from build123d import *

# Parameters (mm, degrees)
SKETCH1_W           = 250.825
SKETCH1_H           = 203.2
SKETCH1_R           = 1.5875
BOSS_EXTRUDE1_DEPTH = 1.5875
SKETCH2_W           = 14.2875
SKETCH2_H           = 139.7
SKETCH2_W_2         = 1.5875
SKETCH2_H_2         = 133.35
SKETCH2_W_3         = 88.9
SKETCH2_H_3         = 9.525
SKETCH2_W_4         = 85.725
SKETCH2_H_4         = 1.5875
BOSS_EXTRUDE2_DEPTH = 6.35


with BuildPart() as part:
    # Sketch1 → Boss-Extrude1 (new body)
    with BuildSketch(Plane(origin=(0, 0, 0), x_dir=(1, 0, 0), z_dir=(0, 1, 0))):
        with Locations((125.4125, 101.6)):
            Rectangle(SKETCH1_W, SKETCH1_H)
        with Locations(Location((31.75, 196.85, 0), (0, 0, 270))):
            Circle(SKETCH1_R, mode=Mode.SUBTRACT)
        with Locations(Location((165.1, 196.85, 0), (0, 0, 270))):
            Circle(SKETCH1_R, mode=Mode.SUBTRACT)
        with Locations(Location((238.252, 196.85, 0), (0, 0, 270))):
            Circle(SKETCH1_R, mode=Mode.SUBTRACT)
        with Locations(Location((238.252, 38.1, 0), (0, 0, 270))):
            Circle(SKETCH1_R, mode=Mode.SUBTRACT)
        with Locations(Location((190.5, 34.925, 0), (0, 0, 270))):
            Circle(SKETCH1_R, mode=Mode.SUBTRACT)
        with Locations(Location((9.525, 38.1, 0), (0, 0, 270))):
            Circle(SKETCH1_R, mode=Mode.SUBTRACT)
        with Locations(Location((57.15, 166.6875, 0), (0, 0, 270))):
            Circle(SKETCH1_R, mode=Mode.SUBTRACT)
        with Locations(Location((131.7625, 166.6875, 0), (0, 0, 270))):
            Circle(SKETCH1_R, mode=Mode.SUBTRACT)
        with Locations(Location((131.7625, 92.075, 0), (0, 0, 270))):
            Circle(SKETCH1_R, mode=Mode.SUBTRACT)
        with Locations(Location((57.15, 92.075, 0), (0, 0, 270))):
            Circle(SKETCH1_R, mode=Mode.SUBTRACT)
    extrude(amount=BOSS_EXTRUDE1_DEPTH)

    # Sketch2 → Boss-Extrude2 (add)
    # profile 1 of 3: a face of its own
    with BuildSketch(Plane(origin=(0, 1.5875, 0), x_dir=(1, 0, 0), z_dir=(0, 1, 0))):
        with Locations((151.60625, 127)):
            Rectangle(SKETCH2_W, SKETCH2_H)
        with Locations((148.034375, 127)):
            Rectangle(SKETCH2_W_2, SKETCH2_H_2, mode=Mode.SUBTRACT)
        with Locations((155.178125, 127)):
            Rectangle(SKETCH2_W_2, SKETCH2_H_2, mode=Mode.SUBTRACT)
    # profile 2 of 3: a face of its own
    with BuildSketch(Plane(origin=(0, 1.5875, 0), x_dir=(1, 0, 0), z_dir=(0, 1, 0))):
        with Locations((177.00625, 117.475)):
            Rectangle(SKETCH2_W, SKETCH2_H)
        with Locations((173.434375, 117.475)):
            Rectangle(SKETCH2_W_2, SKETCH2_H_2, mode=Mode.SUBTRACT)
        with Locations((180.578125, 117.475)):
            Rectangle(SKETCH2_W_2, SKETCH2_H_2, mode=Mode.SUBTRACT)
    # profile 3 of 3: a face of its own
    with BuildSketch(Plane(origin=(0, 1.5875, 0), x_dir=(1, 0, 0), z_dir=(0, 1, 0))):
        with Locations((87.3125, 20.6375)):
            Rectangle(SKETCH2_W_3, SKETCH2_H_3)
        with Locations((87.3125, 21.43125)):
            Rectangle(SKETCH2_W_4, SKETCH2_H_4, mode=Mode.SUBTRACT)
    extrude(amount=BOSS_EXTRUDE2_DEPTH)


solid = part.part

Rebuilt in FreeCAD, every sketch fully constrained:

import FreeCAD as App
import Part
import Sketcher
from FreeCAD import Vector
Q = App.Units.Quantity


def add_polygon(sketch, points):
    """Adds a closed chain of lines whose ends are joined by coincident constraints."""
    first, n = sketch.GeometryCount, len(points)
    for a, b in zip(points, points[1:] + points[:1]):
        sketch.addGeometry(Part.LineSegment(App.Vector(*a, 0), App.Vector(*b, 0)), False)
    for i in range(n):
        sketch.addConstraint(Sketcher.Constraint("Coincident", first + i, 2, first + (i + 1) % n, 1))

doc = App.newDocument("Part")
body = doc.addObject("PartDesign::Body", "Body")

# Sketch on XZ plane
sketch1 = body.newObject("Sketcher::SketchObject", "Sketch")
sketch1.AttachmentSupport = (doc.getObject("XZ_Plane"), [""])
sketch1.MapMode = "FlatFace"
add_polygon(sketch1, [(0, -203.2), (0, 0), (250.8, 0), (250.8, -203.2)])  # lines 0-3
sketch1.addGeometry(Part.Circle(Vector(9.5, -38.1, 0), Vector(0, 0, 1), 1.6), False)  # 4
sketch1.addGeometry(Part.Circle(Vector(57.1, -92.1, 0), Vector(0, 0, 1), 1.6), False)  # 5
sketch1.addGeometry(Part.Circle(Vector(190.5, -34.9, 0), Vector(0, 0, 1), 1.6), False)  # 6
sketch1.addGeometry(Part.Circle(Vector(238.3, -38.1, 0), Vector(0, 0, 1), 1.6), False)  # 7
sketch1.addGeometry(Part.Circle(Vector(131.8, -92.1, 0), Vector(0, 0, 1), 1.6), False)  # 8
sketch1.addGeometry(Part.Circle(Vector(57.1, -166.7, 0), Vector(0, 0, 1), 1.6), False)  # 9
sketch1.addGeometry(Part.Circle(Vector(31.8, -196.8, 0), Vector(0, 0, 1), 1.6), False)  # 10
sketch1.addGeometry(Part.Circle(Vector(131.8, -166.7, 0), Vector(0, 0, 1), 1.6), False)  # 11
sketch1.addGeometry(Part.Circle(Vector(165.1, -196.8, 0), Vector(0, 0, 1), 1.6), False)  # 12
sketch1.addGeometry(Part.Circle(Vector(238.3, -196.8, 0), Vector(0, 0, 1), 1.6), False)  # 13
sketch1.addConstraint([
    Sketcher.Constraint("Vertical", 0),
    Sketcher.Constraint("Horizontal", 1),
    Sketcher.Constraint("Vertical", 2),
    Sketcher.Constraint("Horizontal", 3),
    Sketcher.Constraint("Coincident", 0, 2, -1, 1),
    Sketcher.Constraint("Equal", 4, 5),
    Sketcher.Constraint("Equal", 5, 6),
    Sketcher.Constraint("Equal", 6, 7),
    Sketcher.Constraint("Equal", 7, 8),
    Sketcher.Constraint("Equal", 8, 9),
    Sketcher.Constraint("Equal", 9, 10),
    Sketcher.Constraint("Equal", 10, 11),
    Sketcher.Constraint("Equal", 11, 12),
    Sketcher.Constraint("Equal", 12, 13),
    Sketcher.Constraint("Horizontal", 4, 3, 7, 3),
    Sketcher.Constraint("Horizontal", 5, 3, 8, 3),
    Sketcher.Constraint("Horizontal", 9, 3, 11, 3),
    Sketcher.Constraint("Horizontal", 10, 3, 12, 3),
    Sketcher.Constraint("Horizontal", 12, 3, 13, 3),
    Sketcher.Constraint("Vertical", 5, 3, 9, 3),
    Sketcher.Constraint("Vertical", 8, 3, 11, 3),
    Sketcher.Constraint("Vertical", 7, 3, 13, 3),
    Sketcher.Constraint("DistanceY", 0, 1, 0, 2, Q("8 in")),
    Sketcher.Constraint("Diameter", 4, Q("0.125 in")),
    Sketcher.Constraint("DistanceX", 10, 3, 9, 3, Q("1 in")),
    Sketcher.Constraint("DistanceY", 4, 3, -1, 1, Q("1.5 in")),
    Sketcher.Constraint("DistanceX", -1, 1, 6, 3, Q("7.5 in")),
    Sketcher.Constraint("DistanceX", -1, 1, 12, 3, Q("6.5 in")),
    Sketcher.Constraint("DistanceX", 1, 1, 1, 2, Q("9.875 in")),
    Sketcher.Constraint("DistanceX", -1, 1, 5, 3, Q("2.25 in")),
    Sketcher.Constraint("DistanceX", -1, 1, 7, 3, Q("9.38 in")),
    Sketcher.Constraint("DistanceY", 10, 3, -1, 1, Q("7.75 in")),
    Sketcher.Constraint("DistanceY", 5, 3, 6, 3, Q("2.25 in")),
    Sketcher.Constraint("DistanceX", -1, 1, 4, 3, Q("0.375 in")),
    Sketcher.Constraint("DistanceY", 5, 3, -1, 1, Q("3.625 in")),
    Sketcher.Constraint("DistanceX", -1, 1, 8, 3, Q("5.1875 in")),
    Sketcher.Constraint("DistanceY", 9, 3, -1, 1, Q("6.5625 in")),
])
pad1 = body.newObject("PartDesign::Pad", "Pad")
pad1.Profile = sketch1
pad1.Length = Q("0.0625 in")
pad1.Reversed = True

# Sketch on XZ plane
sketch2 = body.newObject("Sketcher::SketchObject", "Sketch001")
sketch2.AttachmentSupport = (doc.getObject("XZ_Plane"), [""])
sketch2.MapMode = "FlatFace"
sketch2.AttachmentOffset = App.Placement(Vector(0, 0, -0.0625 * 25.4), App.Rotation())
add_polygon(sketch2, [(144.5, -196.8), (144.5, -57.1), (158.8, -57.1), (158.8, -196.8)])  # lines 0-3
add_polygon(sketch2, [(148.8, -60.3), (147.2, -60.3), (147.2, -193.7), (148.8, -193.7)])  # lines 4-7
add_polygon(sketch2, [(156, -60.3), (154.4, -60.3), (154.4, -193.7), (156, -193.7)])  # lines 8-11
add_polygon(sketch2, [(169.9, -187.3), (169.9, -47.6), (184.2, -47.6), (184.2, -187.3)])  # lines 12-15
add_polygon(sketch2, [(174.2, -50.8), (172.6, -50.8), (172.6, -184.2), (174.2, -184.2)])  # lines 16-19
add_polygon(sketch2, [(181.4, -50.8), (179.8, -50.8), (179.8, -184.2), (181.4, -184.2)])  # lines 20-23
add_polygon(sketch2, [(42.9, -25.4), (42.9, -15.9), (131.8, -15.9), (131.8, -25.4)])  # lines 24-27
add_polygon(sketch2, [(130.2, -20.6), (44.5, -20.6), (44.5, -22.2), (130.2, -22.2)])  # lines 28-31
sketch2.addConstraint([
    Sketcher.Constraint("Vertical", 0),
    Sketcher.Constraint("Horizontal", 1),
    Sketcher.Constraint("Vertical", 2),
    Sketcher.Constraint("Horizontal", 3),
    Sketcher.Constraint("Horizontal", 4),
    Sketcher.Constraint("Vertical", 5),
    Sketcher.Constraint("Horizontal", 6),
    Sketcher.Constraint("Vertical", 7),
    Sketcher.Constraint("Horizontal", 8),
    Sketcher.Constraint("Vertical", 9),
    Sketcher.Constraint("Horizontal", 10),
    Sketcher.Constraint("Vertical", 11),
    Sketcher.Constraint("Vertical", 12),
    Sketcher.Constraint("Horizontal", 13),
    Sketcher.Constraint("Vertical", 14),
    Sketcher.Constraint("Horizontal", 15),
    Sketcher.Constraint("Horizontal", 16),
    Sketcher.Constraint("Vertical", 17),
    Sketcher.Constraint("Horizontal", 18),
    Sketcher.Constraint("Vertical", 19),
    Sketcher.Constraint("Horizontal", 20),
    Sketcher.Constraint("Vertical", 21),
    Sketcher.Constraint("Horizontal", 22),
    Sketcher.Constraint("Vertical", 23),
    Sketcher.Constraint("Vertical", 24),
    Sketcher.Constraint("Horizontal", 25),
    Sketcher.Constraint("Vertical", 26),
    Sketcher.Constraint("Horizontal", 27),
    Sketcher.Constraint("Horizontal", 28),
    Sketcher.Constraint("Vertical", 29),
    Sketcher.Constraint("Horizontal", 30),
    Sketcher.Constraint("Vertical", 31),
    Sketcher.Constraint("Horizontal", 7, 2, 8, 2),
    Sketcher.Constraint("Horizontal", 6, 2, 9, 2),
    Sketcher.Constraint("Horizontal", 19, 2, 20, 2),
    Sketcher.Constraint("Horizontal", 18, 2, 21, 2),
    Sketcher.Constraint("Equal", 6, 8),
    Sketcher.Constraint("Equal", 3, 13),
    Sketcher.Constraint("Equal", 10, 16),
    Sketcher.Constraint("Equal", 18, 20),
    Sketcher.Constraint("Equal", 2, 12),
    Sketcher.Constraint("Equal", 11, 17),
    Sketcher.Constraint("Equal", 22, 29),
    Sketcher.Constraint("DistanceX", 25, 1, 25, 2, Q("3.5 in")),
    Sketcher.Constraint("DistanceY", 0, 1, 0, 2, Q("5.5 in")),
    Sketcher.Constraint("DistanceY", 16, 2, -1, 1, Q("2 in")),
    Sketcher.Constraint("DistanceY", 26, 2, -1, 1, Q("1 in")),
    Sketcher.Constraint("DistanceX", 1, 2, 13, 2, Q("1 in")),
    Sketcher.Constraint("DistanceX", 24, 2, 0, 2, Q("4 in")),
    Sketcher.Constraint("DistanceY", 5, 2, 5, 1, Q("5.25 in")),
    Sketcher.Constraint("DistanceY", 11, 2, 12, 2, Q("0.5 in")),
    Sketcher.Constraint("DistanceY", 2, 2, 17, 2, Q("0.5 in")),
    Sketcher.Constraint("DistanceY", 4, 2, 30, 2, Q("1.5 in")),
    Sketcher.Constraint("DistanceX", 1, 1, 1, 2, Q("0.5625 in")),
    Sketcher.Constraint("DistanceX", 4, 2, 4, 1, Q("0.0625 in")),
    Sketcher.Constraint("DistanceX", 28, 2, 28, 1, Q("3.375 in")),
    Sketcher.Constraint("DistanceY", 24, 1, 24, 2, Q("0.375 in")),
    Sketcher.Constraint("DistanceX", -1, 1, 1, 2, Q("6.25 in")),
    Sketcher.Constraint("DistanceX", -1, 1, 28, 2, Q("1.75 in")),
    Sketcher.Constraint("DistanceY", 4, 2, 24, 2, Q("1.75 in")),
    Sketcher.Constraint("DistanceX", -1, 1, 4, 2, Q("5.796875 in")),
    Sketcher.Constraint("DistanceX", -1, 1, 8, 2, Q("6.078125 in")),
    Sketcher.Constraint("DistanceX", -1, 1, 16, 2, Q("6.796875 in")),
    Sketcher.Constraint("DistanceX", -1, 1, 20, 2, Q("7.078125 in")),
])
pad2 = body.newObject("PartDesign::Pad", "Pad001")
pad2.Profile = sketch2
pad2.Length = Q("0.25 in")
pad2.Reversed = True

doc.recompute()
